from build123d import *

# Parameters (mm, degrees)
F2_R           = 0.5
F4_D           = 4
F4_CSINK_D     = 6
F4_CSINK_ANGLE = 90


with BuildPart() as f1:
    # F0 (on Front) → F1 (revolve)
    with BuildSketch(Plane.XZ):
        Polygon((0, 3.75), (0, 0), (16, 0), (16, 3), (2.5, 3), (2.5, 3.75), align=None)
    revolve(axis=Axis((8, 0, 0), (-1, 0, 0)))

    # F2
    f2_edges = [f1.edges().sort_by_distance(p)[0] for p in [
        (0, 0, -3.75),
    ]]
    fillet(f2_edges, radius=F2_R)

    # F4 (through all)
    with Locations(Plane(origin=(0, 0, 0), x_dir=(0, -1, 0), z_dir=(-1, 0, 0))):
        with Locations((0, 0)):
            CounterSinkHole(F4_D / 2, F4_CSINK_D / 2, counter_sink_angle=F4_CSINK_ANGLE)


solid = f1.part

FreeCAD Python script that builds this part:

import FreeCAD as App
import Part
import Sketcher
from FreeCAD import Vector
Q = App.Units.Quantity


def edges_at(feature, points):
    """Names of the edges that pass closest to the given points."""
    edges = feature.Shape.Edges
    near = lambda p: min(range(len(edges)), key=lambda i: edges[i].distToShape(Part.Vertex(*p))[0])
    return sorted({f"Edge{near(p) + 1}" for p in points})

doc = App.newDocument("Part")
params = doc.addObject("Spreadsheet::Sheet", "Params")
for row, (alias, value) in enumerate([
    ("sketch1_width", "16 mm"),
    ("sketch1_height", "3 mm"),
    ("sketch1_width2", "13.5 mm"),
    ("sketch1_height2", "3.75 mm"),
    ("revolution_angle", "360 deg"),
    ("fillet_radius", "0.5 mm"),
    ("sketch2_diameter", "4 mm"),
    ("hole_diameter", "4 mm"),
    ("hole_csink_diameter", "6 mm"),
], start=1):
    params.set(f"A{row}", alias)
    params.set(f"B{row}", "=" + value)
    params.setAlias(f"B{row}", alias)

body = doc.addObject("PartDesign::Body", "Body")

sketch1 = body.newObject("Sketcher::SketchObject", "Sketch")
sketch1.AttachmentSupport = (doc.getObject("XZ_Plane"), [""])
sketch1.MapMode = "FlatFace"
sketch1.addGeometry([
    Part.LineSegment(Vector(0, 3.75, 0), Vector(0, 0, 0)),
    Part.LineSegment(Vector(0, 0, 0), Vector(16, 0, 0)),
    Part.LineSegment(Vector(16, 0, 0), Vector(16, 3, 0)),
    Part.LineSegment(Vector(16, 3, 0), Vector(2.5, 3, 0)),
    Part.LineSegment(Vector(2.5, 3, 0), Vector(2.5, 3.75, 0)),
    Part.LineSegment(Vector(2.5, 3.75, 0), Vector(0, 3.75, 0)),
], False)
sketch1.addConstraint([
    Sketcher.Constraint("Coincident", 0, 2, 1, 1),
    Sketcher.Constraint("Coincident", 1, 2, 2, 1),
    Sketcher.Constraint("Coincident", 2, 2, 3, 1),
    Sketcher.Constraint("Coincident", 3, 2, 4, 1),
    Sketcher.Constraint("Coincident", 4, 2, 5, 1),
    Sketcher.Constraint("Coincident", 5, 2, 0, 1),
    Sketcher.Constraint("Vertical", 0),
    Sketcher.Constraint("Horizontal", 1),
    Sketcher.Constraint("Vertical", 2),
    Sketcher.Constraint("Horizontal", 3),
    Sketcher.Constraint("Vertical", 4),
    Sketcher.Constraint("Horizontal", 5),
    Sketcher.Constraint("Coincident", 0, 2, -1, 1),
    Sketcher.Constraint("DistanceX", 1, 1, 1, 2, Q("16 mm")),
    Sketcher.Constraint("DistanceY", 2, 1, 2, 2, Q("3 mm")),
    Sketcher.Constraint("DistanceX", 3, 2, 3, 1, Q("13.5 mm")),
    Sketcher.Constraint("DistanceY", 0, 2, 0, 1, Q("3.75 mm")),
])
sketch1.setExpression("Constraints[13]", "Params.sketch1_width")
sketch1.setExpression("Constraints[14]", "Params.sketch1_height")
sketch1.setExpression("Constraints[15]", "Params.sketch1_width2")
sketch1.setExpression("Constraints[16]", "Params.sketch1_height2")
revolution = body.newObject("PartDesign::Revolution", "Revolution")
revolution.Profile = sketch1
revolution.ReferenceAxis = (sketch1, ["H_Axis"])
revolution.setExpression("Angle", "Params.revolution_angle")
doc.recompute()

fillet = body.newObject("PartDesign::Fillet", "Fillet")
fillet.Base = (revolution, edges_at(revolution, [(0, 0, -3.75)]))
fillet.setExpression("Radius", "Params.fillet_radius")

sketch2 = body.newObject("Sketcher::SketchObject", "Sketch001")
sketch2.AttachmentSupport = (doc.getObject("YZ_Plane"), [""])
sketch2.MapMode = "FlatFace"
sketch2.addGeometry(Part.Circle(Vector(0, 0, 0), Vector(0, 0, 1), 2), False)
sketch2.addConstraint([
    Sketcher.Constraint("Coincident", 0, 3, -1, 1),
    Sketcher.Constraint("Diameter", 0, Q("4 mm")),
])
sketch2.setExpression("Constraints[1]", "Params.sketch2_diameter")
doc.recompute()
hole = body.newObject("PartDesign::Hole", "Hole")
hole.Profile = sketch2
hole.ThreadType = "None"
hole.setExpression("Diameter", "Params.hole_diameter")
hole.DepthType = "ThroughAll"
hole.HoleCutType = "Countersink"
hole.setExpression("HoleCutDiameter", "Params.hole_csink_diameter")
hole.HoleCutCountersinkAngle = 90
hole.Reversed = True

doc.recompute()
